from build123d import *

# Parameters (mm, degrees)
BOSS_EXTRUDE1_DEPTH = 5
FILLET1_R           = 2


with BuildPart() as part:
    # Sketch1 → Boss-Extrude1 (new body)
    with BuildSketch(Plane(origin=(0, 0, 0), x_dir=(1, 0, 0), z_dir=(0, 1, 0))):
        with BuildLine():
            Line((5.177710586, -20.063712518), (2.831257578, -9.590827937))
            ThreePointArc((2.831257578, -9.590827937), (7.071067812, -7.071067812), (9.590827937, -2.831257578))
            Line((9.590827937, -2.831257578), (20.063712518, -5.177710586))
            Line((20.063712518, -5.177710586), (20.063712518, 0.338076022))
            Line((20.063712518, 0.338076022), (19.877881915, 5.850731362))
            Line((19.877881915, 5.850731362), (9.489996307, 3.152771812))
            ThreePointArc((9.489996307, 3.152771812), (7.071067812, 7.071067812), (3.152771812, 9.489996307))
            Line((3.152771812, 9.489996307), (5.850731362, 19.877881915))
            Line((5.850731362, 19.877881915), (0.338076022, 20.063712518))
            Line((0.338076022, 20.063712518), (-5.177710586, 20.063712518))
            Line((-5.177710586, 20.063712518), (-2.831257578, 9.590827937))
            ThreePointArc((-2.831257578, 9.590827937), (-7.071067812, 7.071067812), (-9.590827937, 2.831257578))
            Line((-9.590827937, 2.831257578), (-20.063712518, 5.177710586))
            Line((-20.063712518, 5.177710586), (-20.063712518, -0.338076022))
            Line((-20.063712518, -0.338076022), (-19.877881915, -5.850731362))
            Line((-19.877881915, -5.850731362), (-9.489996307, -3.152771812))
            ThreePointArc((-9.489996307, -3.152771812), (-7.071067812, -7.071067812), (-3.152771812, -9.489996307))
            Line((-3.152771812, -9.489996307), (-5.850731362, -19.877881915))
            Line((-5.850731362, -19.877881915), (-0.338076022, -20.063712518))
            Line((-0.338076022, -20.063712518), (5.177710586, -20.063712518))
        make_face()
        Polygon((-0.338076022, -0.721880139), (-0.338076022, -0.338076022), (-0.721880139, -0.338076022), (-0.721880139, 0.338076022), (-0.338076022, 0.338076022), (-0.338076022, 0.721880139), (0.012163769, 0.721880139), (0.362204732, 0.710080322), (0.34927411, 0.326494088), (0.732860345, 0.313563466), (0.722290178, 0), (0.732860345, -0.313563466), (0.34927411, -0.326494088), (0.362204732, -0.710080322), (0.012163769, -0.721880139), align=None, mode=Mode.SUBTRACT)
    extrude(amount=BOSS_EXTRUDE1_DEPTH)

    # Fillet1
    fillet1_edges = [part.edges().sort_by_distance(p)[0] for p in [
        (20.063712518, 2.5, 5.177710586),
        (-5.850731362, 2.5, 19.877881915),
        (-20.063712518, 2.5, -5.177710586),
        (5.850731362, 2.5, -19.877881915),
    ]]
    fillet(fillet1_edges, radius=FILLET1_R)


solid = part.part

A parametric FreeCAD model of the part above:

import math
import FreeCAD as App
import Part
import Sketcher
from FreeCAD import Vector
Q = App.Units.Quantity


def edges_at(feature, points):
    """Names of the edges that pass closest to the given points."""
    edges = feature.Shape.Edges
    near = lambda p: min(range(len(edges)), key=lambda i: edges[i].distToShape(Part.Vertex(*p))[0])
    return sorted({f"Edge{near(p) + 1}" for p in points})

doc = App.newDocument("Part")
body = doc.addObject("PartDesign::Body", "Body")

# Sketch on XZ plane
sketch1 = body.newObject("Sketcher::SketchObject", "Sketch")
sketch1.AttachmentSupport = (doc.getObject("XZ_Plane"), [""])
sketch1.MapMode = "FlatFace"
sketch1.addGeometry(Part.LineSegment(Vector(5.177711, 20.063713, 0), Vector(2.831258, 9.590828, 0)), False)
sketch1.addGeometry(Part.ArcOfCircle(Part.Circle(Vector(0, 0, 0), Vector(0, 0, 1), 10), math.radians(16.446849), math.radians(73.553151)), False)
sketch1.addGeometry(Part.LineSegment(Vector(9.590828, 2.831258, 0), Vector(20.063713, 5.177711, 0)), False)
sketch1.addGeometry(Part.LineSegment(Vector(20.063713, 5.177711, 0), Vector(20.063713, -0.338076, 0)), False)
sketch1.addGeometry(Part.LineSegment(Vector(20.063713, -0.338076, 0), Vector(19.877882, -5.850731, 0)), False)
sketch1.addGeometry(Part.LineSegment(Vector(19.877882, -5.850731, 0), Vector(9.489996, -3.152772, 0)), False)
sketch1.addGeometry(Part.ArcOfCircle(Part.Circle(Vector(0, 0, 0), Vector(0, 0, 1), 10), math.radians(-71.622452), math.radians(-18.377548)), False)
sketch1.addGeometry(Part.LineSegment(Vector(3.152772, -9.489996, 0), Vector(5.850731, -19.877882, 0)), False)
sketch1.addGeometry(Part.LineSegment(Vector(5.850731, -19.877882, 0), Vector(0.338076, -20.063713, 0)), False)
sketch1.addGeometry(Part.LineSegment(Vector(0.338076, -20.063713, 0), Vector(-5.177711, -20.063713, 0)), False)
sketch1.addGeometry(Part.LineSegment(Vector(-5.177711, -20.063713, 0), Vector(-2.831258, -9.590828, 0)), False)
sketch1.addGeometry(Part.ArcOfCircle(Part.Circle(Vector(0, 0, 0), Vector(0, 0, 1), 10), math.radians(-163.553151), math.radians(-106.446849)), False)
sketch1.addGeometry(Part.LineSegment(Vector(-9.590828, -2.831258, 0), Vector(-20.063713, -5.177711, 0)), False)
sketch1.addGeometry(Part.LineSegment(Vector(-20.063713, -5.177711, 0), Vector(-20.063713, 0.338076, 0)), False)
sketch1.addGeometry(Part.LineSegment(Vector(-20.063713, 0.338076, 0), Vector(-19.877882, 5.850731, 0)), False)
sketch1.addGeometry(Part.LineSegment(Vector(-19.877882, 5.850731, 0), Vector(-9.489996, 3.152772, 0)), False)
sketch1.addGeometry(Part.ArcOfCircle(Part.Circle(Vector(0, 0, 0), Vector(0, 0, 1), 10), math.radians(108.377548), math.radians(161.622452)), False)
sketch1.addGeometry(Part.LineSegment(Vector(-3.152772, 9.489996, 0), Vector(-5.850731, 19.877882, 0)), False)
sketch1.addGeometry(Part.LineSegment(Vector(-5.850731, 19.877882, 0), Vector(-0.338076, 20.063713, 0)), False)
sketch1.addGeometry(Part.LineSegment(Vector(-0.338076, 20.063713, 0), Vector(5.177711, 20.063713, 0)), False)
sketch1.addGeometry(Part.LineSegment(Vector(0.012164, 0.72188, 0), Vector(-0.338076, 0.72188, 0)), False)
sketch1.addGeometry(Part.LineSegment(Vector(-0.338076, 0.72188, 0), Vector(-0.338076, 0.338076, 0)), False)
sketch1.addGeometry(Part.LineSegment(Vector(-0.338076, 0.338076, 0), Vector(-0.72188, 0.338076, 0)), False)
sketch1.addGeometry(Part.LineSegment(Vector(-0.72188, 0.338076, 0), Vector(-0.72188, -0.338076, 0)), False)
sketch1.addGeometry(Part.LineSegment(Vector(-0.72188, -0.338076, 0), Vector(-0.338076, -0.338076, 0)), False)
sketch1.addGeometry(Part.LineSegment(Vector(-0.338076, -0.338076, 0), Vector(-0.338076, -0.72188, 0)), False)
sketch1.addGeometry(Part.LineSegment(Vector(-0.338076, -0.72188, 0), Vector(0.012164, -0.72188, 0)), False)
sketch1.addGeometry(Part.LineSegment(Vector(0.012164, -0.72188, 0), Vector(0.362205, -0.71008, 0)), False)
sketch1.addGeometry(Part.LineSegment(Vector(0.362205, -0.71008, 0), Vector(0.349274, -0.326494, 0)), False)
sketch1.addGeometry(Part.LineSegment(Vector(0.349274, -0.326494, 0), Vector(0.73286, -0.313563, 0)), False)
sketch1.addGeometry(Part.LineSegment(Vector(0.73286, -0.313563, 0), Vector(0.72229, 0, 0)), False)
sketch1.addGeometry(Part.LineSegment(Vector(0.72229, 0, 0), Vector(0.73286, 0.313563, 0)), False)
sketch1.addGeometry(Part.LineSegment(Vector(0.73286, 0.313563, 0), Vector(0.349274, 0.326494, 0)), False)
sketch1.addGeometry(Part.LineSegment(Vector(0.349274, 0.326494, 0), Vector(0.362205, 0.71008, 0)), False)
sketch1.addGeometry(Part.LineSegment(Vector(0.362205, 0.71008, 0), Vector(0.012164, 0.72188, 0)), False)
sketch1.addConstraint(Sketcher.Constraint("Coincident", 0, 2, 1, 2))
sketch1.addConstraint(Sketcher.Constraint("Coincident", 1, 1, 2, 1))
sketch1.addConstraint(Sketcher.Constraint("Coincident", 2, 2, 3, 1))
sketch1.addConstraint(Sketcher.Constraint("Coincident", 3, 2, 4, 1))
sketch1.addConstraint(Sketcher.Constraint("Coincident", 4, 2, 5, 1))
sketch1.addConstraint(Sketcher.Constraint("Coincident", 5, 2, 6, 2))
sketch1.addConstraint(Sketcher.Constraint("Coincident", 6, 1, 7, 1))
sketch1.addConstraint(Sketcher.Constraint("Coincident", 7, 2, 8, 1))
sketch1.addConstraint(Sketcher.Constraint("Coincident", 8, 2, 9, 1))
sketch1.addConstraint(Sketcher.Constraint("Coincident", 9, 2, 10, 1))
sketch1.addConstraint(Sketcher.Constraint("Coincident", 10, 2, 11, 2))
sketch1.addConstraint(Sketcher.Constraint("Coincident", 11, 1, 12, 1))
sketch1.addConstraint(Sketcher.Constraint("Coincident", 12, 2, 13, 1))
sketch1.addConstraint(Sketcher.Constraint("Coincident", 13, 2, 14, 1))
sketch1.addConstraint(Sketcher.Constraint("Coincident", 14, 2, 15, 1))
sketch1.addConstraint(Sketcher.Constraint("Coincident", 15, 2, 16, 2))
sketch1.addConstraint(Sketcher.Constraint("Coincident", 16, 1, 17, 1))
sketch1.addConstraint(Sketcher.Constraint("Coincident", 17, 2, 18, 1))
sketch1.addConstraint(Sketcher.Constraint("Coincident", 18, 2, 19, 1))
sketch1.addConstraint(Sketcher.Constraint("Coincident", 19, 2, 0, 1))
sketch1.addConstraint(Sketcher.Constraint("Coincident", 20, 2, 21, 1))
sketch1.addConstraint(Sketcher.Constraint("Coincident", 21, 2, 22, 1))
sketch1.addConstraint(Sketcher.Constraint("Coincident", 22, 2, 23, 1))
sketch1.addConstraint(Sketcher.Constraint("Coincident", 23, 2, 24, 1))
sketch1.addConstraint(Sketcher.Constraint("Coincident", 24, 2, 25, 1))
sketch1.addConstraint(Sketcher.Constraint("Coincident", 25, 2, 26, 1))
sketch1.addConstraint(Sketcher.Constraint("Coincident", 26, 2, 27, 1))
sketch1.addConstraint(Sketcher.Constraint("Coincident", 27, 2, 28, 1))
sketch1.addConstraint(Sketcher.Constraint("Coincident", 28, 2, 29, 1))
sketch1.addConstraint(Sketcher.Constraint("Coincident", 29, 2, 30, 1))
sketch1.addConstraint(Sketcher.Constraint("Coincident", 30, 2, 31, 1))
sketch1.addConstraint(Sketcher.Constraint("Coincident", 31, 2, 32, 1))
sketch1.addConstraint(Sketcher.Constraint("Coincident", 32, 2, 33, 1))
sketch1.addConstraint(Sketcher.Constraint("Coincident", 33, 2, 34, 1))
sketch1.addConstraint(Sketcher.Constraint("Coincident", 34, 2, 20, 1))
sketch1.addConstraint(Sketcher.Constraint("Vertical", 3))
sketch1.addConstraint(Sketcher.Constraint("Horizontal", 9))
sketch1.addConstraint(Sketcher.Constraint("Vertical", 13))
sketch1.addConstraint(Sketcher.Constraint("Horizontal", 19))
sketch1.addConstraint(Sketcher.Constraint("Horizontal", 20))
sketch1.addConstraint(Sketcher.Constraint("Vertical", 21))
sketch1.addConstraint(Sketcher.Constraint("Horizontal", 22))
sketch1.addConstraint(Sketcher.Constraint("Vertical", 23))
sketch1.addConstraint(Sketcher.Constraint("Horizontal", 24))
sketch1.addConstraint(Sketcher.Constraint("Vertical", 25))
sketch1.addConstraint(Sketcher.Constraint("Horizontal", 26))
sketch1.addConstraint(Sketcher.Constraint("Coincident", 1, 3, -1, 1))
sketch1.addConstraint(Sketcher.Constraint("Coincident", 6, 3, -1, 1))
sketch1.addConstraint(Sketcher.Constraint("Coincident", 11, 3, -1, 1))
sketch1.addConstraint(Sketcher.Constraint("Coincident", 16, 3, -1, 1))
sketch1.addConstraint(Sketcher.Constraint("PointOnObject", 30, 2, -1))
sketch1.addConstraint(Sketcher.Constraint("Radius", 1, Q("10 mm")))
sketch1.addConstraint(Sketcher.Constraint("Radius", 6, Q("10 mm")))
sketch1.addConstraint(Sketcher.Constraint("Radius", 11, Q("10 mm")))
sketch1.addConstraint(Sketcher.Constraint("Radius", 16, Q("10 mm")))
sketch1.addConstraint(Sketcher.Constraint("DistanceX", 20, 2, 20, 1, Q("0.35024 mm")))
sketch1.addConstraint(Sketcher.Constraint("DistanceX", 26, 1, 26, 2, Q("0.35024 mm")))
sketch1.addConstraint(Sketcher.Constraint("DistanceY", 26, 2, 27, 2, Q("0.0118 mm")))
sketch1.addConstraint(Sketcher.Constraint("DistanceY", 33, 2, 20, 2, Q("0.0118 mm")))
sketch1.addConstraint(Sketcher.Constraint("Distance", 27, Q("0.35024 mm")))
sketch1.addConstraint(Sketcher.Constraint("Distance", 30, Q("0.313742 mm")))
sketch1.addConstraint(Sketcher.Constraint("Distance", 31, Q("0.313742 mm")))
sketch1.addConstraint(Sketcher.Constraint("Distance", 34, Q("0.35024 mm")))
sketch1.addConstraint(Sketcher.Constraint("DistanceX", 9, 2, 9, 1, Q("5.515787 mm")))
sketch1.addConstraint(Sketcher.Constraint("DistanceX", 19, 1, 19, 2, Q("5.515787 mm")))
sketch1.addConstraint(Sketcher.Constraint("DistanceX", 22, 2, 22, 1, Q("0.383804 mm")))
sketch1.addConstraint(Sketcher.Constraint("DistanceX", 24, 1, 24, 2, Q("0.383804 mm")))
sketch1.addConstraint(Sketcher.Constraint("DistanceY", 3, 2, 3, 1, Q("5.515787 mm")))
sketch1.addConstraint(Sketcher.Constraint("DistanceY", 13, 1, 13, 2, Q("5.515787 mm")))
sketch1.addConstraint(Sketcher.Constraint("DistanceY", 21, 2, 21, 1, Q("0.383804 mm")))
sketch1.addConstraint(Sketcher.Constraint("DistanceY", 23, 2, 23, 1, Q("0.676152 mm")))
sketch1.addConstraint(Sketcher.Constraint("DistanceY", 25, 2, 25, 1, Q("0.383804 mm")))
sketch1.addConstraint(Sketcher.Constraint("DistanceY", -1, 1, 2, 2, Q("5.177711 mm")))
sketch1.addConstraint(Sketcher.Constraint("DistanceX", -1, 1, 4, 2, Q("19.877882 mm")))
sketch1.addConstraint(Sketcher.Constraint("DistanceY", 4, 2, -1, 1, Q("5.850731 mm")))
sketch1.addConstraint(Sketcher.Constraint("DistanceY", 5, 2, -1, 1, Q("3.152772 mm")))
sketch1.addConstraint(Sketcher.Constraint("DistanceX", -1, 1, 6, 1, Q("3.152772 mm")))
sketch1.addConstraint(Sketcher.Constraint("DistanceX", -1, 1, 7, 2, Q("5.850731 mm")))
sketch1.addConstraint(Sketcher.Constraint("DistanceY", 7, 2, -1, 1, Q("19.877882 mm")))
sketch1.addConstraint(Sketcher.Constraint("DistanceX", 9, 2, -1, 1, Q("5.177711 mm")))
sketch1.addConstraint(Sketcher.Constraint("DistanceY", 12, 2, -1, 1, Q("5.177711 mm")))
sketch1.addConstraint(Sketcher.Constraint("DistanceX", 14, 2, -1, 1, Q("19.877882 mm")))
sketch1.addConstraint(Sketcher.Constraint("DistanceY", -1, 1, 14, 2, Q("5.850731 mm")))
sketch1.addConstraint(Sketcher.Constraint("DistanceY", -1, 1, 15, 2, Q("3.152772 mm")))
sketch1.addConstraint(Sketcher.Constraint("DistanceX", 16, 1, -1, 1, Q("3.152772 mm")))
sketch1.addConstraint(Sketcher.Constraint("DistanceX", 17, 2, -1, 1, Q("5.850731 mm")))
sketch1.addConstraint(Sketcher.Constraint("DistanceY", -1, 1, 17, 2, Q("19.877882 mm")))
sketch1.addConstraint(Sketcher.Constraint("DistanceX", -1, 1, 19, 2, Q("5.177711 mm")))
sketch1.addConstraint(Sketcher.Constraint("DistanceY", -1, 1, 20, 2, Q("0.72188 mm")))
sketch1.addConstraint(Sketcher.Constraint("DistanceX", 22, 2, -1, 1, Q("0.72188 mm")))
sketch1.addConstraint(Sketcher.Constraint("DistanceX", -1, 1, 29, 2, Q("0.73286 mm")))
sketch1.addConstraint(Sketcher.Constraint("DistanceX", -1, 1, 30, 2, Q("0.72229 mm")))
sketch1.addConstraint(Sketcher.Constraint("DistanceX", -1, 1, 31, 2, Q("0.73286 mm")))
sketch1.addConstraint(Sketcher.Constraint("DistanceX", 0, 2, 1, 1, Q("6.75957 mm")))
sketch1.addConstraint(Sketcher.Constraint("DistanceY", 1, 1, 0, 2, Q("6.75957 mm")))
sketch1.addConstraint(Sketcher.Constraint("DistanceX", 4, 2, 3, 2, Q("0.185831 mm")))
sketch1.addConstraint(Sketcher.Constraint("DistanceY", 8, 2, 7, 2, Q("0.185831 mm")))
sketch1.addConstraint(Sketcher.Constraint("DistanceX", 10, 2, 6, 1, Q("5.984029 mm")))
sketch1.addConstraint(Sketcher.Constraint("DistanceX", 11, 1, 10, 2, Q("6.75957 mm")))
sketch1.addConstraint(Sketcher.Constraint("DistanceX", 13, 2, 14, 2, Q("0.185831 mm")))
sketch1.addConstraint(Sketcher.Constraint("DistanceY", 17, 2, 18, 2, Q("0.185831 mm")))
sketch1.addConstraint(Sketcher.Constraint("DistanceX", 28, 2, 27, 2, Q("0.012931 mm")))
sketch1.addConstraint(Sketcher.Constraint("DistanceY", 28, 2, 29, 2, Q("0.012931 mm")))
sketch1.addConstraint(Sketcher.Constraint("DistanceY", 31, 2, 32, 2, Q("0.012931 mm")))
sketch1.addConstraint(Sketcher.Constraint("DistanceX", 32, 2, 33, 2, Q("0.012931 mm")))
pad1 = body.newObject("PartDesign::Pad", "Pad")
pad1.Profile = sketch1
pad1.Length = 5
pad1.Reversed = True
doc.recompute()

fillet = body.newObject("PartDesign::Fillet", "Fillet")
fillet.Base = (pad1, edges_at(pad1, [
    (20.064, 2.5, 5.178),
    (-5.851, 2.5, 19.878),
    (-20.064, 2.5, -5.178),
    (5.851, 2.5, -19.878),
]))
fillet.Radius = 2

doc.recompute()
